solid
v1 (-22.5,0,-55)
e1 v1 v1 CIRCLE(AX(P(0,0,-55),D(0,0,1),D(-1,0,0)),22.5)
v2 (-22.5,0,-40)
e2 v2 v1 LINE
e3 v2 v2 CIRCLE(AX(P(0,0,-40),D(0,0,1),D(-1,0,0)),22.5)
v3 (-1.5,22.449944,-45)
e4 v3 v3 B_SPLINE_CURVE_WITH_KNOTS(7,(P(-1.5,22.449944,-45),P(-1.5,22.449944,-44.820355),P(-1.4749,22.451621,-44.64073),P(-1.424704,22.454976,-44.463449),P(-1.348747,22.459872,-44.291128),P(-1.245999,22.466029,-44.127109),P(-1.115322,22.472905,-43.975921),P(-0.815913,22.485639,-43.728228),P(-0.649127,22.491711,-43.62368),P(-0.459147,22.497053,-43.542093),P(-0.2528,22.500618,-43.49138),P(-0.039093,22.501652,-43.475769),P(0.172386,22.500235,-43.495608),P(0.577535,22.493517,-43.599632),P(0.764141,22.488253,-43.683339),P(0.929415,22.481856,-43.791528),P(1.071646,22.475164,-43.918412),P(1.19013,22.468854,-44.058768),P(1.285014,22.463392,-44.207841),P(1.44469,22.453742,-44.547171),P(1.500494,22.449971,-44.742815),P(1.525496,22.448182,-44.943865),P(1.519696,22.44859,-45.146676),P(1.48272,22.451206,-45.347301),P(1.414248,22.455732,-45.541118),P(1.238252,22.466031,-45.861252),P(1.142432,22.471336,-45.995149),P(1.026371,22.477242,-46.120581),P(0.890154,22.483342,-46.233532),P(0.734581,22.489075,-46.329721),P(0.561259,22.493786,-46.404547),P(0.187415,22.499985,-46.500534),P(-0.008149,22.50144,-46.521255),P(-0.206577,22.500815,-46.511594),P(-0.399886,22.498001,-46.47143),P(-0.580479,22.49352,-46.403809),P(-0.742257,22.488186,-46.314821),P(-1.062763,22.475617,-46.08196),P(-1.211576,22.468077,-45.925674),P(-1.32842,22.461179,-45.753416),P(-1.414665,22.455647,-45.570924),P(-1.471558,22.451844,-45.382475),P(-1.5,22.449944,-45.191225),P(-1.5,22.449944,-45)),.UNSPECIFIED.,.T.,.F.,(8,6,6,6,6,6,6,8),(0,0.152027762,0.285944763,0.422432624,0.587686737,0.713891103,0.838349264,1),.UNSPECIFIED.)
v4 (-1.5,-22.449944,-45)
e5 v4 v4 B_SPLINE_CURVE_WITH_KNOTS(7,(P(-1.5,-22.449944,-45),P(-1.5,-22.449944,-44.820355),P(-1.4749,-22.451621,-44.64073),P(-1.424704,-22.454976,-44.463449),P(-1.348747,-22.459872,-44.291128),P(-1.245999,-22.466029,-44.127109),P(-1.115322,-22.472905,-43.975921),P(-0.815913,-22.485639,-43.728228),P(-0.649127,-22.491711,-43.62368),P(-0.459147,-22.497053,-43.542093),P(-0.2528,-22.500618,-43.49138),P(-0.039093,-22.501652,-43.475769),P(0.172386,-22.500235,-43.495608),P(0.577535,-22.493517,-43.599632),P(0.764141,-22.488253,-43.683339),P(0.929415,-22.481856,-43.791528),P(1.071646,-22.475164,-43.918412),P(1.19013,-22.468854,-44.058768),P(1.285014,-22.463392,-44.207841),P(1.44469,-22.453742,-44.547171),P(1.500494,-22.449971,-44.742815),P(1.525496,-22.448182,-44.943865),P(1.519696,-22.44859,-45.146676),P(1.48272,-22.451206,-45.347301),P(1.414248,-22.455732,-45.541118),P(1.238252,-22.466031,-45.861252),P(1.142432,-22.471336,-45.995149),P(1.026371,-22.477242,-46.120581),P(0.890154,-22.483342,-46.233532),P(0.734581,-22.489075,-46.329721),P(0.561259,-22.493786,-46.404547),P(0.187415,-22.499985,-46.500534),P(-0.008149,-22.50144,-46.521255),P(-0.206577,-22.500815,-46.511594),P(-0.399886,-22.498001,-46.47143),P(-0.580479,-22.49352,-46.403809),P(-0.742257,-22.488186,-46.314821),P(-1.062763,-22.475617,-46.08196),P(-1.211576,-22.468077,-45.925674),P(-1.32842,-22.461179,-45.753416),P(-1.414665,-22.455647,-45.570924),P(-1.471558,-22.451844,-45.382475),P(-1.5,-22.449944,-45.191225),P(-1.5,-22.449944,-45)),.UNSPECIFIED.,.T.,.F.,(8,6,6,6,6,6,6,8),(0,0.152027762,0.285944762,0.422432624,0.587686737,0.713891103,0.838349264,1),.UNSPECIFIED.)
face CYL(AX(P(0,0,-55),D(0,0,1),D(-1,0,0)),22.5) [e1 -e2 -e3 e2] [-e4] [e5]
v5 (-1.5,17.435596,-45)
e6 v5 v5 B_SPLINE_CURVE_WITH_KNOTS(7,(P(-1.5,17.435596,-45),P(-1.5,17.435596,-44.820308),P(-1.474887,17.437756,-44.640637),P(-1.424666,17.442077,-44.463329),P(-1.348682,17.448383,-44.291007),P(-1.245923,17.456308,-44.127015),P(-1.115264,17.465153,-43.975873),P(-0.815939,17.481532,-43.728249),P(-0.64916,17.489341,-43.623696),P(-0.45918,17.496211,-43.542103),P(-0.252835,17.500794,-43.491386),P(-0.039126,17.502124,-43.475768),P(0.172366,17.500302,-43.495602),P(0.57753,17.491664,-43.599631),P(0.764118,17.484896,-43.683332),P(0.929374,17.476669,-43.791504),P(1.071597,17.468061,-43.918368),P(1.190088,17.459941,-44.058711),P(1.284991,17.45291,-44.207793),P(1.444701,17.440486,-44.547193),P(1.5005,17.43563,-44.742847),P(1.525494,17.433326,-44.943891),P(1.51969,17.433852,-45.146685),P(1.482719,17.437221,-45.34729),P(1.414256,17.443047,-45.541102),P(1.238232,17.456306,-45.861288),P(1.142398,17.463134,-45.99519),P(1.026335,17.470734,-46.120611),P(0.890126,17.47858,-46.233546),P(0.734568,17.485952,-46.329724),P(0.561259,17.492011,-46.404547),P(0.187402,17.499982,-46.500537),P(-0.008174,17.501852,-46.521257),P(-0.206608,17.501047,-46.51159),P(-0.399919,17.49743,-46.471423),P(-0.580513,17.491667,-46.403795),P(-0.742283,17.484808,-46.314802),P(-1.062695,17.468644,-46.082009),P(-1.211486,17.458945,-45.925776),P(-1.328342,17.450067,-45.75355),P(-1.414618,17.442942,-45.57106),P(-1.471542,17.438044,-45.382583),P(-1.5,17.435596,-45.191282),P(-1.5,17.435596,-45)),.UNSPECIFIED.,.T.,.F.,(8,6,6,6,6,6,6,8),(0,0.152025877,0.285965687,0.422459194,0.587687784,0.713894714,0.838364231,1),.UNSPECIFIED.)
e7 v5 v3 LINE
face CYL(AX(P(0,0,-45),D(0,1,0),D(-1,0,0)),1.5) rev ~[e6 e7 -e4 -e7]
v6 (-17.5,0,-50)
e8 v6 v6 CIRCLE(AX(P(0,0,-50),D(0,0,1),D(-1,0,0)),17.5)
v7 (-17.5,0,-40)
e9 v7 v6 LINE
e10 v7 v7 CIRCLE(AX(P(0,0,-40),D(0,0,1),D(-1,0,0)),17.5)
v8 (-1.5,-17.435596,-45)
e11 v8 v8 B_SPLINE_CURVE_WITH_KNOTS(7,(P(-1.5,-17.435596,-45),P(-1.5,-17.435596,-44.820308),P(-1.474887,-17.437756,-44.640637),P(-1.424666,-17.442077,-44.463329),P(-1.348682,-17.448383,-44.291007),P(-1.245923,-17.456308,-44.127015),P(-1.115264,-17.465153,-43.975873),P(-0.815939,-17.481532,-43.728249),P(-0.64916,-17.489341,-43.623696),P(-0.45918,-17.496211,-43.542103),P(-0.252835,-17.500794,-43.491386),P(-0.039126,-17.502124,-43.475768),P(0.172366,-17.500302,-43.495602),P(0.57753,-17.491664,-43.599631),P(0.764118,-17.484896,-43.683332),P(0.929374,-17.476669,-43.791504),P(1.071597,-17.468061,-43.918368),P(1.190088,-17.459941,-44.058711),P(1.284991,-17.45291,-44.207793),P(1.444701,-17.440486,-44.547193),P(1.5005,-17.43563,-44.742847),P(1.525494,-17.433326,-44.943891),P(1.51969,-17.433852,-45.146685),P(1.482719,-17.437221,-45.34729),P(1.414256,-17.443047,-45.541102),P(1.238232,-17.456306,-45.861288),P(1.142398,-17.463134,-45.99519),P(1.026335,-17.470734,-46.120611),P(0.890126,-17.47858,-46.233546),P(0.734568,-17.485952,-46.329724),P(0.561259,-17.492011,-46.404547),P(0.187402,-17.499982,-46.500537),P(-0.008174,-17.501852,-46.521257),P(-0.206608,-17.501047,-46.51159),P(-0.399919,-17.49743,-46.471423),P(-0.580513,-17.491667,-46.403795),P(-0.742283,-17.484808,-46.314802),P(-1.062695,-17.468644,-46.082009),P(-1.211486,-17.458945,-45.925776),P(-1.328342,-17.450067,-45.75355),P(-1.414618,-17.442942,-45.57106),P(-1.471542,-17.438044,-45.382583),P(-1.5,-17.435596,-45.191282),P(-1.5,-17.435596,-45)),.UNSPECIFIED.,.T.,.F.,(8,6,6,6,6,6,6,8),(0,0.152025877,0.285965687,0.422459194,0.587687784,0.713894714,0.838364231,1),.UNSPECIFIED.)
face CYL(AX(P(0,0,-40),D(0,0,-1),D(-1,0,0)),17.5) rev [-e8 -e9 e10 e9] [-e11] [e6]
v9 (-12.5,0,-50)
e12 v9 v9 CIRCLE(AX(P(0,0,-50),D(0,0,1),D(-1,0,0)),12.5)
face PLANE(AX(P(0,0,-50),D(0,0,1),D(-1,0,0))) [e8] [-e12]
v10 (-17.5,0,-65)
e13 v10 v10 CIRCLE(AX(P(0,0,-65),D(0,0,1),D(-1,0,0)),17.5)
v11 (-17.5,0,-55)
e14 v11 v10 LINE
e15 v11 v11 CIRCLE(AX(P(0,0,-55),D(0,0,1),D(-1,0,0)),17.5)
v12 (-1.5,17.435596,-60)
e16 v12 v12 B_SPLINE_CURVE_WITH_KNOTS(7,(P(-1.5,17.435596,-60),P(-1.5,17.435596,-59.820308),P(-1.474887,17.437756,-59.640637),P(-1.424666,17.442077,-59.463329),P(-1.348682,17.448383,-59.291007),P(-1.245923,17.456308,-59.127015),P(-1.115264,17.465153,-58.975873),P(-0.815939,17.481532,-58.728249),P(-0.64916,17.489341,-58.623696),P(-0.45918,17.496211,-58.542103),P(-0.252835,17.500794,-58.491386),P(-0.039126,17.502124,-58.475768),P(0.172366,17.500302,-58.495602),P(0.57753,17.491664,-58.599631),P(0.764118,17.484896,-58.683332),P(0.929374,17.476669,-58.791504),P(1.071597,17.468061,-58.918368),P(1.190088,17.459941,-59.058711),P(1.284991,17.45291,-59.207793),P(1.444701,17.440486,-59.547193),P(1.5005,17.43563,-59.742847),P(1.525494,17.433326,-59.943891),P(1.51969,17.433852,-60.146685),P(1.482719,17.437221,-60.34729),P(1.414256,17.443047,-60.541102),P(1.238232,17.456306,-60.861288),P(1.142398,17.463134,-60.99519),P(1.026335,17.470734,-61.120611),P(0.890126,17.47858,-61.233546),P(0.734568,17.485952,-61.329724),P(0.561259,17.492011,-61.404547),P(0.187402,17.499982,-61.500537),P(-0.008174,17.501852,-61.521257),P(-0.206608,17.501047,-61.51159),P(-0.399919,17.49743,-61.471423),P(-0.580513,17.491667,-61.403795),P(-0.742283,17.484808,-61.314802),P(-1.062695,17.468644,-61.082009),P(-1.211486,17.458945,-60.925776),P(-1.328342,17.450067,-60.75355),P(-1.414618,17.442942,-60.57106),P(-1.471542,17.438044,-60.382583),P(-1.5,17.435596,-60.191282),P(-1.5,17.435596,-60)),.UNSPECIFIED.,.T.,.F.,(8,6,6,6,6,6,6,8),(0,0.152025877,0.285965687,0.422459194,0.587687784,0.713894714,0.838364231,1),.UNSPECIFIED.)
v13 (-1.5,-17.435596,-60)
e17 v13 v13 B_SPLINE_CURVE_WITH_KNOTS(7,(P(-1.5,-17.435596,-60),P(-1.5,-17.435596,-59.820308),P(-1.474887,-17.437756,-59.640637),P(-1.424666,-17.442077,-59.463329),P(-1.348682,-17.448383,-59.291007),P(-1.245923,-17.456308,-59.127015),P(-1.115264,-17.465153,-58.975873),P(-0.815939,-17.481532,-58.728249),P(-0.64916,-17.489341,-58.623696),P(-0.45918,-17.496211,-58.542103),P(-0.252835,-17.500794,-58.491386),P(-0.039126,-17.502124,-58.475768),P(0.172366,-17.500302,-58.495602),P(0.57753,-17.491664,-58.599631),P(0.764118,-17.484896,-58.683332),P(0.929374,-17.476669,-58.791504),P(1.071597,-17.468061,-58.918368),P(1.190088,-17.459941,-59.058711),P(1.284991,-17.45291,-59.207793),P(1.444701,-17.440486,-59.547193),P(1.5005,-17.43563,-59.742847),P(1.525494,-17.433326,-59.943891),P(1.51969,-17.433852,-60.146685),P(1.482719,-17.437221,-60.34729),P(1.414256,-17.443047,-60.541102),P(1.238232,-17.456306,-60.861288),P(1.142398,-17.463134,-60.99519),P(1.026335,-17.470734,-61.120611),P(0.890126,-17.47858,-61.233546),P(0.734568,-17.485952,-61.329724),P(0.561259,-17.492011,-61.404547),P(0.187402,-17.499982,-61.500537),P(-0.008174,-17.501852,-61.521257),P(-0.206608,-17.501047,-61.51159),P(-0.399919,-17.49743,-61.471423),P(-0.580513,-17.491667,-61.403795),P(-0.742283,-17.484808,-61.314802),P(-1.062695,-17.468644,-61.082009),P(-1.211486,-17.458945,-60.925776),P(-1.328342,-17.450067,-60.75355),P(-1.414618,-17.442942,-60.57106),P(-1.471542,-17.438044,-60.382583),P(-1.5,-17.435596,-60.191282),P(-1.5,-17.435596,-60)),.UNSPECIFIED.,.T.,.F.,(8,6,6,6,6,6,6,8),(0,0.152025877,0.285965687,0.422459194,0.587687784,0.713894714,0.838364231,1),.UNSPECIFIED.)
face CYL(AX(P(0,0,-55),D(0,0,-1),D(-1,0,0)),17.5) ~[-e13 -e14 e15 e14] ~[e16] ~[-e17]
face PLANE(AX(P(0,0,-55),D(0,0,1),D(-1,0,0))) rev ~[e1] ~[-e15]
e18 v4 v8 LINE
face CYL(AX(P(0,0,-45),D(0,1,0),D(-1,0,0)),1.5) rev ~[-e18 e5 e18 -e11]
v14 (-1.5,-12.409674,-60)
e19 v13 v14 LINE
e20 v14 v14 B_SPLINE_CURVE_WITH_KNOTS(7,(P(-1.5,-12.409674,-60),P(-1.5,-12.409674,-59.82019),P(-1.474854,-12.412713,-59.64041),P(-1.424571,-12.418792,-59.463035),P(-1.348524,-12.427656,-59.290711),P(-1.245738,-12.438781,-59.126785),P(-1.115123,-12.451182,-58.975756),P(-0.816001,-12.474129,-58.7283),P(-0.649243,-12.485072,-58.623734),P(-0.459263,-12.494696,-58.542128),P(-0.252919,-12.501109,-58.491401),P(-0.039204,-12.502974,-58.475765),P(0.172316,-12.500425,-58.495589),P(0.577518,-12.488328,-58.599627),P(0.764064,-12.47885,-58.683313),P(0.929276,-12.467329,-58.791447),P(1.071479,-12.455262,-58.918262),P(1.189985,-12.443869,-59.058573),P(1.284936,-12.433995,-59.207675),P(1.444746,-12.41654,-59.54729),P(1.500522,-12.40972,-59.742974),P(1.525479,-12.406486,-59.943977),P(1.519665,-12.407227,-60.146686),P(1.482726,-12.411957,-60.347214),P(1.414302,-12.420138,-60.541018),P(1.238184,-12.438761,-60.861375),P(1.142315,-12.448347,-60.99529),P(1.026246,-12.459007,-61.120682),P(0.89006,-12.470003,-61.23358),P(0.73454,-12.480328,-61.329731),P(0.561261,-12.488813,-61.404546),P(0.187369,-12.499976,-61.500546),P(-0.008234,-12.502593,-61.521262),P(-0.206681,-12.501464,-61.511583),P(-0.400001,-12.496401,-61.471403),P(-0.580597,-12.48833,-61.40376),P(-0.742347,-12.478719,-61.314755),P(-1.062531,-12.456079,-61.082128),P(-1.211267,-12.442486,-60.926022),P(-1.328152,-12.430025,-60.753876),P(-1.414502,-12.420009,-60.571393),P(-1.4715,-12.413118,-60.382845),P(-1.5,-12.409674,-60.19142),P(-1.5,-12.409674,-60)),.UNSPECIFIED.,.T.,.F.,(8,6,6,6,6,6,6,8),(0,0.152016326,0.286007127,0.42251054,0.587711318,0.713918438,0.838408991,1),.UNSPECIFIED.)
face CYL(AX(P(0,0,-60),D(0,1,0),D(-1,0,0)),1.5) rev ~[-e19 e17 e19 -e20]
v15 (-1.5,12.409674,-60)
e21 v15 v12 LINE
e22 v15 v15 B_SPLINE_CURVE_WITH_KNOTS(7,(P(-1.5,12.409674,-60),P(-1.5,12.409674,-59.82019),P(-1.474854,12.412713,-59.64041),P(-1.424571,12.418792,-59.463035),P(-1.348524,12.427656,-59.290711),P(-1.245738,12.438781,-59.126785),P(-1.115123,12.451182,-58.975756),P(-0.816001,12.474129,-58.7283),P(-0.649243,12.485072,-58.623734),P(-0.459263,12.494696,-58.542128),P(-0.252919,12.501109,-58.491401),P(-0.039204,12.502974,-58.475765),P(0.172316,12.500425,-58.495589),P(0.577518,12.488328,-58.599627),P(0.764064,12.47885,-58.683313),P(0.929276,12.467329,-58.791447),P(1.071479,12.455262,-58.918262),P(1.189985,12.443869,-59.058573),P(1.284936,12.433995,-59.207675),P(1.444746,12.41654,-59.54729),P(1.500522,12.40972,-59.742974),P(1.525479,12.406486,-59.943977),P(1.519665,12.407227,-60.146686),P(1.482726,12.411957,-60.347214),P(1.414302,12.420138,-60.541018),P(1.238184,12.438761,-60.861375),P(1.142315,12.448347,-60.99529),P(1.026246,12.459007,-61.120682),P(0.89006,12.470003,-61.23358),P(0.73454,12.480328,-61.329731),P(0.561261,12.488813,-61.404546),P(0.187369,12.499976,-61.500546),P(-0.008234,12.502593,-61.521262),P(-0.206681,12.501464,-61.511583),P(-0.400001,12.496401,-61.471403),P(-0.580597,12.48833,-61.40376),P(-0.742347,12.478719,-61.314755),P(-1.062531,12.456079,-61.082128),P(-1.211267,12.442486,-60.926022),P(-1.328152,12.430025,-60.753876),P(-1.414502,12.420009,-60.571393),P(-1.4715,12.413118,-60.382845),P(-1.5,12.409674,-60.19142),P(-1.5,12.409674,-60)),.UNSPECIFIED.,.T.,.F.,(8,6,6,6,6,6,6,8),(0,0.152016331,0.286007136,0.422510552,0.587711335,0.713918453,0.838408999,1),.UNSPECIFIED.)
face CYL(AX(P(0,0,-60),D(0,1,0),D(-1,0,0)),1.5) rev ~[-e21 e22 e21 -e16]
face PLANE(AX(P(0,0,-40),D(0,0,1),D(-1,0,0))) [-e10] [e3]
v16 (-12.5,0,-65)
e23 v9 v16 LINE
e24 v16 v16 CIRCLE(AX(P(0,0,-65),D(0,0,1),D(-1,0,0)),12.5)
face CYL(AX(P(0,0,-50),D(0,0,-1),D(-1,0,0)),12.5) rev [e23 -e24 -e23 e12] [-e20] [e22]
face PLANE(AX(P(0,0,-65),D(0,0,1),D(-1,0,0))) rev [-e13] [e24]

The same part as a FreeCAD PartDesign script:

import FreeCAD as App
import Part
import Sketcher
from FreeCAD import Vector
Q = App.Units.Quantity


def add_polygon(sketch, points):
    """Adds a closed chain of lines whose ends are joined by coincident constraints."""
    first, n = sketch.GeometryCount, len(points)
    for a, b in zip(points, points[1:] + points[:1]):
        sketch.addGeometry(Part.LineSegment(App.Vector(*a, 0), App.Vector(*b, 0)), False)
    for i in range(n):
        sketch.addConstraint(Sketcher.Constraint("Coincident", first + i, 2, first + (i + 1) % n, 1))

doc = App.newDocument("Part")
body = doc.addObject("PartDesign::Body", "Body")

# Sketch on XZ plane
sketch1 = body.newObject("Sketcher::SketchObject", "Sketch")
sketch1.AttachmentSupport = (doc.getObject("XZ_Plane"), [""])
sketch1.MapMode = "FlatFace"
add_polygon(sketch1, [(-22, -40), (-18, -40), (-18, -50), (-12, -50), (-12, -65), (-18, -65), (-18, -55), (-22, -55)])  # lines 0-7
sketch1.addConstraint([
    Sketcher.Constraint("Horizontal", 0),
    Sketcher.Constraint("Vertical", 1),
    Sketcher.Constraint("Horizontal", 2),
    Sketcher.Constraint("Vertical", 3),
    Sketcher.Constraint("Horizontal", 4),
    Sketcher.Constraint("Vertical", 5),
    Sketcher.Constraint("Horizontal", 6),
    Sketcher.Constraint("Vertical", 7),
    Sketcher.Constraint("Vertical", 1, 2, 4, 2),
    Sketcher.Constraint("Equal", 0, 2),
    Sketcher.Constraint("Equal", 1, 5),
    Sketcher.Constraint("DistanceX", 0, 1, 0, 2, Q("5 mm")),
    Sketcher.Constraint("DistanceY", 1, 2, 1, 1, Q("10 mm")),
    Sketcher.Constraint("DistanceY", 3, 2, 3, 1, Q("15 mm")),
    Sketcher.Constraint("DistanceX", 0, 2, -1, 1, Q("17.5 mm")),
    Sketcher.Constraint("DistanceY", 0, 2, -1, 1, Q("40 mm")),
])
revolution = body.newObject("PartDesign::Revolution", "Revolution")
revolution.Profile = sketch1
revolution.ReferenceAxis = (sketch1, ["V_Axis"])
revolution.Angle = 360

# Sketch on XZ plane
sketch2 = body.newObject("Sketcher::SketchObject", "Sketch001")
sketch2.AttachmentSupport = (doc.getObject("XZ_Plane"), [""])
sketch2.MapMode = "FlatFace"
sketch2.addGeometry([
    Part.Circle(Vector(0, -60, 0), Vector(0, 0, 1), 1.5),
    Part.Circle(Vector(0, -45, 0), Vector(0, 0, 1), 1.5),
], False)
sketch2.addConstraint([
    Sketcher.Constraint("Equal", 0, 1),
    Sketcher.Constraint("PointOnObject", 0, 3, -2),
    Sketcher.Constraint("PointOnObject", 1, 3, -2),
    Sketcher.Constraint("Diameter", 0, Q("3 mm")),
    Sketcher.Constraint("DistanceY", 0, 3, -1, 1, Q("60 mm")),
    Sketcher.Constraint("DistanceY", 1, 3, -1, 1, Q("45 mm")),
])
pocket1 = body.newObject("PartDesign::Pocket", "Pocket")
pocket1.Profile = sketch2
pocket1.Type = "ThroughAll"
pocket1.Midplane = True

doc.recompute()
